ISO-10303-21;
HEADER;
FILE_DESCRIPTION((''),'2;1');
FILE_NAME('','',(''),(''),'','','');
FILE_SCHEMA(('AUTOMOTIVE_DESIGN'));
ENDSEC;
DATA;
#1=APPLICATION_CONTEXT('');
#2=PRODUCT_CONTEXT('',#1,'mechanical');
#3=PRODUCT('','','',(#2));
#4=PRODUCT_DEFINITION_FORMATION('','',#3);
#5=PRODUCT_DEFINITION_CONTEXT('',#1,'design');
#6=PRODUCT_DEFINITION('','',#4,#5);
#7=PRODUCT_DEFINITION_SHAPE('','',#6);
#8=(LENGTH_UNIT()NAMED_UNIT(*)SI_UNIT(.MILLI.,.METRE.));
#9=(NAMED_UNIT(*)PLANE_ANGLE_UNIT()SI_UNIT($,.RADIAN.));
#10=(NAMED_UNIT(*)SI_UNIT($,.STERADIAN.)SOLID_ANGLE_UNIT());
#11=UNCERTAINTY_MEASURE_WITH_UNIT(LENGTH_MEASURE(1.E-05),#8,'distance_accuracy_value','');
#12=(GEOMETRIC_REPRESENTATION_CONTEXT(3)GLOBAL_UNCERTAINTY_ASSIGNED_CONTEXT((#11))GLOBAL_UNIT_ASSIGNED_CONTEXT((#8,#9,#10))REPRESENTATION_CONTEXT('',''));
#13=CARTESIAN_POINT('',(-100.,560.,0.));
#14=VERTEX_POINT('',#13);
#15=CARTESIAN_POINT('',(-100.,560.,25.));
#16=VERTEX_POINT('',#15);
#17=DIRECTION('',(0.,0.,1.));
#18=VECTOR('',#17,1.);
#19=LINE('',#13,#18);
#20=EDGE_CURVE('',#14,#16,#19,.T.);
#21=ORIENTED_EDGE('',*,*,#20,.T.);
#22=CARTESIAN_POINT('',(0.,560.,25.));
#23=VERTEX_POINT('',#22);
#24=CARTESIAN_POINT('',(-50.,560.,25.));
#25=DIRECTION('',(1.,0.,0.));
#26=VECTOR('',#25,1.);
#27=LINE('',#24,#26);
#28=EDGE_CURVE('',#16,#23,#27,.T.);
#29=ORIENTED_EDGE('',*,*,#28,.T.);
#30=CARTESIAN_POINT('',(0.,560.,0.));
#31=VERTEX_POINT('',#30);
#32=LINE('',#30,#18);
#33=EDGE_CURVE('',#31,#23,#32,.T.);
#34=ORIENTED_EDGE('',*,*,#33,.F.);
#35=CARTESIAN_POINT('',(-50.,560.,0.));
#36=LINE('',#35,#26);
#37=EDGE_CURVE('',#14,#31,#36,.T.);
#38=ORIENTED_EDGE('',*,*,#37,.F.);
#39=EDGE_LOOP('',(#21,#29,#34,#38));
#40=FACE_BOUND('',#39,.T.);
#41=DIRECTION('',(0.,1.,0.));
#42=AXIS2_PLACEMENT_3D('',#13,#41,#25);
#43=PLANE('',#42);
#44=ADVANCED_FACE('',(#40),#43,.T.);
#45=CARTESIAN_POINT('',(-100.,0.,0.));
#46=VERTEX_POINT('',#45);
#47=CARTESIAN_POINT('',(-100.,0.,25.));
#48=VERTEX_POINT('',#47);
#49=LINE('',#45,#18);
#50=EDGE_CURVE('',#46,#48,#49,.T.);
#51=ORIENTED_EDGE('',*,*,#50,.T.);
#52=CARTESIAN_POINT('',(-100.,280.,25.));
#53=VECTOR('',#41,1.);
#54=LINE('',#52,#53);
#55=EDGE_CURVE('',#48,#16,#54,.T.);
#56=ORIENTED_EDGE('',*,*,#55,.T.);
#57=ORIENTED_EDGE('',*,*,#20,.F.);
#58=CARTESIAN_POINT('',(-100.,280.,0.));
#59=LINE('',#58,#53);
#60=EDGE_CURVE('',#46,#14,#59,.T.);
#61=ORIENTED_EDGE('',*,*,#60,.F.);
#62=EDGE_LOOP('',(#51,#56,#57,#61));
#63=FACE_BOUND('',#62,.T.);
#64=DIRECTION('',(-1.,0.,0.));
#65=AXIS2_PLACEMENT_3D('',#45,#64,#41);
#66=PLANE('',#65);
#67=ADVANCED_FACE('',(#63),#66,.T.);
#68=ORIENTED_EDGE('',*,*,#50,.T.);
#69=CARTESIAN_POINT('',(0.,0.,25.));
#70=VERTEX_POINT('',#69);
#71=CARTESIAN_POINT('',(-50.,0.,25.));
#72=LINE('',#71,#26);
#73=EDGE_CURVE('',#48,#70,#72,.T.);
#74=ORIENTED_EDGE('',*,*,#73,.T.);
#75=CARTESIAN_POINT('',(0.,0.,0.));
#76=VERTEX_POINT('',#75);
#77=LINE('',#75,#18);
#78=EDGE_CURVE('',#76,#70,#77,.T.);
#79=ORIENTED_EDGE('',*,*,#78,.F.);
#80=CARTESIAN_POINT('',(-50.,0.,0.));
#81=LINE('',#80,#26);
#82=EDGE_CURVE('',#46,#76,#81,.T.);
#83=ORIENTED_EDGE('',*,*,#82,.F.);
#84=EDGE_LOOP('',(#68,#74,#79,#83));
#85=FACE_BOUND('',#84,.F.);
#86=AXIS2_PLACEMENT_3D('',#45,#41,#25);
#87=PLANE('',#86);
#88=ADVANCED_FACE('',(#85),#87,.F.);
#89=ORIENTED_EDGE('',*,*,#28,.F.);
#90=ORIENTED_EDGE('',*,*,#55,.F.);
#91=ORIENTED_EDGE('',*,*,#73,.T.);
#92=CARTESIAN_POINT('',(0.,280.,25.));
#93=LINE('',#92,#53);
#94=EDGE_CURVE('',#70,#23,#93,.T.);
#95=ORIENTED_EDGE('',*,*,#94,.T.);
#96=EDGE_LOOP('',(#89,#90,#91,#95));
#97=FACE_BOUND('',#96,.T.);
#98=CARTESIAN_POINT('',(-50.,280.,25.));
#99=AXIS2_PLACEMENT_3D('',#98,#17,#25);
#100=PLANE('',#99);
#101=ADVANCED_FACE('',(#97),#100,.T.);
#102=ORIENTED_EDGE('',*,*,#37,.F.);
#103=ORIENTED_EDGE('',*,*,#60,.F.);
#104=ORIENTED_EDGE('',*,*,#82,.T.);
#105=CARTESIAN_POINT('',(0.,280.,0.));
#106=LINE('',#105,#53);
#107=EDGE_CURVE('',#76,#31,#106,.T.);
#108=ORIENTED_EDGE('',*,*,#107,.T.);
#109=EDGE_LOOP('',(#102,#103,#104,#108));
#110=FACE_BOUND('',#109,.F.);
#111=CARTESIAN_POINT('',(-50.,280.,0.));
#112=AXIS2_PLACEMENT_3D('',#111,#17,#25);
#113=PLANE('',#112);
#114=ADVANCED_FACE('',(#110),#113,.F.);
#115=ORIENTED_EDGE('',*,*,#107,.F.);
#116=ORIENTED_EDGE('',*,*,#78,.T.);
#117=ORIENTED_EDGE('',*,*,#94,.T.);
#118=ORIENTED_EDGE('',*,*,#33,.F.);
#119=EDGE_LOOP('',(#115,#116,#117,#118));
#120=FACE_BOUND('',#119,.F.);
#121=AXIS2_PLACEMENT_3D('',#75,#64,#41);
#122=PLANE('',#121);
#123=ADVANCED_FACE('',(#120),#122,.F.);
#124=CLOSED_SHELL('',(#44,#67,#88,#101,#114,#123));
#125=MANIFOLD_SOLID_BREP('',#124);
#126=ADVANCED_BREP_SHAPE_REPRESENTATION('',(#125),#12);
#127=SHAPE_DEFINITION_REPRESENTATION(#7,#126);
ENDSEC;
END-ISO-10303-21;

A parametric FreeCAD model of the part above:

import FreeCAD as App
import Part
import Sketcher
from FreeCAD import Vector

doc = App.newDocument("Part")
body = doc.addObject("PartDesign::Body", "Body")

sketch1 = body.newObject("Sketcher::SketchObject", "Sketch")
sketch1.AttachmentSupport = (doc.getObject("XY_Plane"), [""])
sketch1.MapMode = "FlatFace"
sketch1.addGeometry(Part.LineSegment(Vector(-100, 560, 0), Vector(-100, 0, 0)), False)
sketch1.addGeometry(Part.LineSegment(Vector(-100, 0, 0), Vector(0, 0, 0)), False)
sketch1.addGeometry(Part.LineSegment(Vector(0, 0, 0), Vector(0, 560, 0)), False)
sketch1.addGeometry(Part.LineSegment(Vector(0, 560, 0), Vector(-100, 560, 0)), False)
sketch1.addConstraint(Sketcher.Constraint("Coincident", 0, 2, 1, 1))
sketch1.addConstraint(Sketcher.Constraint("Coincident", 1, 2, 2, 1))
sketch1.addConstraint(Sketcher.Constraint("Coincident", 2, 2, 3, 1))
sketch1.addConstraint(Sketcher.Constraint("Coincident", 3, 2, 0, 1))
sketch1.addConstraint(Sketcher.Constraint("Vertical", 0))
sketch1.addConstraint(Sketcher.Constraint("Horizontal", 1))
sketch1.addConstraint(Sketcher.Constraint("Vertical", 2))
sketch1.addConstraint(Sketcher.Constraint("Horizontal", 3))
sketch1.addConstraint(Sketcher.Constraint("Coincident", 1, 2, -1, 1))
sketch1.addConstraint(Sketcher.Constraint("DistanceX", 1, 1, 1, 2, 100.0))
sketch1.addConstraint(Sketcher.Constraint("DistanceY", 0, 2, 0, 1, 560.0))
pad1 = body.newObject("PartDesign::Pad", "Pad")
pad1.Profile = sketch1
pad1.Length = 25

sketch2 = body.newObject("Sketcher::SketchObject", "Sketch001")
sketch2.AttachmentSupport = (doc.getObject("XY_Plane"), [""])
sketch2.MapMode = "FlatFace"
sketch2.addGeometry(Part.LineSegment(Vector(-100, 560, 0), Vector(-100, 0, 0)), False)
sketch2.addGeometry(Part.LineSegment(Vector(-100, 0, 0), Vector(0, 0, 0)), False)
sketch2.addGeometry(Part.LineSegment(Vector(0, 0, 0), Vector(0, 560, 0)), False)
sketch2.addGeometry(Part.LineSegment(Vector(0, 560, 0), Vector(-100, 560, 0)), False)
sketch2.addConstraint(Sketcher.Constraint("Coincident", 0, 2, 1, 1))
sketch2.addConstraint(Sketcher.Constraint("Coincident", 1, 2, 2, 1))
sketch2.addConstraint(Sketcher.Constraint("Coincident", 2, 2, 3, 1))
sketch2.addConstraint(Sketcher.Constraint("Coincident", 3, 2, 0, 1))
sketch2.addConstraint(Sketcher.Constraint("Vertical", 0))
sketch2.addConstraint(Sketcher.Constraint("Horizontal", 1))
sketch2.addConstraint(Sketcher.Constraint("Vertical", 2))
sketch2.addConstraint(Sketcher.Constraint("Horizontal", 3))
sketch2.addConstraint(Sketcher.Constraint("Coincident", 1, 2, -1, 1))
sketch2.addConstraint(Sketcher.Constraint("DistanceX", 1, 1, 1, 2, 100.0))
sketch2.addConstraint(Sketcher.Constraint("DistanceY", 0, 2, 0, 1, 560.0))
pad2 = body.newObject("PartDesign::Pad", "Pad001")
pad2.Profile = sketch2
pad2.Length = 25

sketch3 = body.newObject("Sketcher::SketchObject", "Sketch002")
sketch3.AttachmentSupport = (doc.getObject("XY_Plane"), [""])
sketch3.MapMode = "FlatFace"
sketch3.addGeometry(Part.LineSegment(Vector(-100, 560, 0), Vector(-100, 0, 0)), False)
sketch3.addGeometry(Part.LineSegment(Vector(-100, 0, 0), Vector(0, 0, 0)), False)
sketch3.addGeometry(Part.LineSegment(Vector(0, 0, 0), Vector(0, 560, 0)), False)
sketch3.addGeometry(Part.LineSegment(Vector(0, 560, 0), Vector(-100, 560, 0)), False)
sketch3.addConstraint(Sketcher.Constraint("Coincident", 0, 2, 1, 1))
sketch3.addConstraint(Sketcher.Constraint("Coincident", 1, 2, 2, 1))
sketch3.addConstraint(Sketcher.Constraint("Coincident", 2, 2, 3, 1))
sketch3.addConstraint(Sketcher.Constraint("Coincident", 3, 2, 0, 1))
sketch3.addConstraint(Sketcher.Constraint("Vertical", 0))
sketch3.addConstraint(Sketcher.Constraint("Horizontal", 1))
sketch3.addConstraint(Sketcher.Constraint("Vertical", 2))
sketch3.addConstraint(Sketcher.Constraint("Horizontal", 3))
sketch3.addConstraint(Sketcher.Constraint("Coincident", 1, 2, -1, 1))
sketch3.addConstraint(Sketcher.Constraint("DistanceX", 1, 1, 1, 2, 100.0))
sketch3.addConstraint(Sketcher.Constraint("DistanceY", 0, 2, 0, 1, 560.0))
pad3 = body.newObject("PartDesign::Pad", "Pad002")
pad3.Profile = sketch3
pad3.Length = 25

sketch4 = body.newObject("Sketcher::SketchObject", "Sketch003")
sketch4.AttachmentSupport = (doc.getObject("XY_Plane"), [""])
sketch4.MapMode = "FlatFace"
sketch4.addGeometry(Part.LineSegment(Vector(-100, 560, 0), Vector(-100, 0, 0)), False)
sketch4.addGeometry(Part.LineSegment(Vector(-100, 0, 0), Vector(0, 0, 0)), False)
sketch4.addGeometry(Part.LineSegment(Vector(0, 0, 0), Vector(0, 560, 0)), False)
sketch4.addGeometry(Part.LineSegment(Vector(0, 560, 0), Vector(-100, 560, 0)), False)
sketch4.addConstraint(Sketcher.Constraint("Coincident", 0, 2, 1, 1))
sketch4.addConstraint(Sketcher.Constraint("Coincident", 1, 2, 2, 1))
sketch4.addConstraint(Sketcher.Constraint("Coincident", 2, 2, 3, 1))
sketch4.addConstraint(Sketcher.Constraint("Coincident", 3, 2, 0, 1))
sketch4.addConstraint(Sketcher.Constraint("Vertical", 0))
sketch4.addConstraint(Sketcher.Constraint("Horizontal", 1))
sketch4.addConstraint(Sketcher.Constraint("Vertical", 2))
sketch4.addConstraint(Sketcher.Constraint("Horizontal", 3))
sketch4.addConstraint(Sketcher.Constraint("Coincident", 1, 2, -1, 1))
sketch4.addConstraint(Sketcher.Constraint("DistanceX", 1, 1, 1, 2, 100.0))
sketch4.addConstraint(Sketcher.Constraint("DistanceY", 0, 2, 0, 1, 560.0))
pad4 = body.newObject("PartDesign::Pad", "Pad003")
pad4.Profile = sketch4
pad4.Length = 25

doc.recompute()
